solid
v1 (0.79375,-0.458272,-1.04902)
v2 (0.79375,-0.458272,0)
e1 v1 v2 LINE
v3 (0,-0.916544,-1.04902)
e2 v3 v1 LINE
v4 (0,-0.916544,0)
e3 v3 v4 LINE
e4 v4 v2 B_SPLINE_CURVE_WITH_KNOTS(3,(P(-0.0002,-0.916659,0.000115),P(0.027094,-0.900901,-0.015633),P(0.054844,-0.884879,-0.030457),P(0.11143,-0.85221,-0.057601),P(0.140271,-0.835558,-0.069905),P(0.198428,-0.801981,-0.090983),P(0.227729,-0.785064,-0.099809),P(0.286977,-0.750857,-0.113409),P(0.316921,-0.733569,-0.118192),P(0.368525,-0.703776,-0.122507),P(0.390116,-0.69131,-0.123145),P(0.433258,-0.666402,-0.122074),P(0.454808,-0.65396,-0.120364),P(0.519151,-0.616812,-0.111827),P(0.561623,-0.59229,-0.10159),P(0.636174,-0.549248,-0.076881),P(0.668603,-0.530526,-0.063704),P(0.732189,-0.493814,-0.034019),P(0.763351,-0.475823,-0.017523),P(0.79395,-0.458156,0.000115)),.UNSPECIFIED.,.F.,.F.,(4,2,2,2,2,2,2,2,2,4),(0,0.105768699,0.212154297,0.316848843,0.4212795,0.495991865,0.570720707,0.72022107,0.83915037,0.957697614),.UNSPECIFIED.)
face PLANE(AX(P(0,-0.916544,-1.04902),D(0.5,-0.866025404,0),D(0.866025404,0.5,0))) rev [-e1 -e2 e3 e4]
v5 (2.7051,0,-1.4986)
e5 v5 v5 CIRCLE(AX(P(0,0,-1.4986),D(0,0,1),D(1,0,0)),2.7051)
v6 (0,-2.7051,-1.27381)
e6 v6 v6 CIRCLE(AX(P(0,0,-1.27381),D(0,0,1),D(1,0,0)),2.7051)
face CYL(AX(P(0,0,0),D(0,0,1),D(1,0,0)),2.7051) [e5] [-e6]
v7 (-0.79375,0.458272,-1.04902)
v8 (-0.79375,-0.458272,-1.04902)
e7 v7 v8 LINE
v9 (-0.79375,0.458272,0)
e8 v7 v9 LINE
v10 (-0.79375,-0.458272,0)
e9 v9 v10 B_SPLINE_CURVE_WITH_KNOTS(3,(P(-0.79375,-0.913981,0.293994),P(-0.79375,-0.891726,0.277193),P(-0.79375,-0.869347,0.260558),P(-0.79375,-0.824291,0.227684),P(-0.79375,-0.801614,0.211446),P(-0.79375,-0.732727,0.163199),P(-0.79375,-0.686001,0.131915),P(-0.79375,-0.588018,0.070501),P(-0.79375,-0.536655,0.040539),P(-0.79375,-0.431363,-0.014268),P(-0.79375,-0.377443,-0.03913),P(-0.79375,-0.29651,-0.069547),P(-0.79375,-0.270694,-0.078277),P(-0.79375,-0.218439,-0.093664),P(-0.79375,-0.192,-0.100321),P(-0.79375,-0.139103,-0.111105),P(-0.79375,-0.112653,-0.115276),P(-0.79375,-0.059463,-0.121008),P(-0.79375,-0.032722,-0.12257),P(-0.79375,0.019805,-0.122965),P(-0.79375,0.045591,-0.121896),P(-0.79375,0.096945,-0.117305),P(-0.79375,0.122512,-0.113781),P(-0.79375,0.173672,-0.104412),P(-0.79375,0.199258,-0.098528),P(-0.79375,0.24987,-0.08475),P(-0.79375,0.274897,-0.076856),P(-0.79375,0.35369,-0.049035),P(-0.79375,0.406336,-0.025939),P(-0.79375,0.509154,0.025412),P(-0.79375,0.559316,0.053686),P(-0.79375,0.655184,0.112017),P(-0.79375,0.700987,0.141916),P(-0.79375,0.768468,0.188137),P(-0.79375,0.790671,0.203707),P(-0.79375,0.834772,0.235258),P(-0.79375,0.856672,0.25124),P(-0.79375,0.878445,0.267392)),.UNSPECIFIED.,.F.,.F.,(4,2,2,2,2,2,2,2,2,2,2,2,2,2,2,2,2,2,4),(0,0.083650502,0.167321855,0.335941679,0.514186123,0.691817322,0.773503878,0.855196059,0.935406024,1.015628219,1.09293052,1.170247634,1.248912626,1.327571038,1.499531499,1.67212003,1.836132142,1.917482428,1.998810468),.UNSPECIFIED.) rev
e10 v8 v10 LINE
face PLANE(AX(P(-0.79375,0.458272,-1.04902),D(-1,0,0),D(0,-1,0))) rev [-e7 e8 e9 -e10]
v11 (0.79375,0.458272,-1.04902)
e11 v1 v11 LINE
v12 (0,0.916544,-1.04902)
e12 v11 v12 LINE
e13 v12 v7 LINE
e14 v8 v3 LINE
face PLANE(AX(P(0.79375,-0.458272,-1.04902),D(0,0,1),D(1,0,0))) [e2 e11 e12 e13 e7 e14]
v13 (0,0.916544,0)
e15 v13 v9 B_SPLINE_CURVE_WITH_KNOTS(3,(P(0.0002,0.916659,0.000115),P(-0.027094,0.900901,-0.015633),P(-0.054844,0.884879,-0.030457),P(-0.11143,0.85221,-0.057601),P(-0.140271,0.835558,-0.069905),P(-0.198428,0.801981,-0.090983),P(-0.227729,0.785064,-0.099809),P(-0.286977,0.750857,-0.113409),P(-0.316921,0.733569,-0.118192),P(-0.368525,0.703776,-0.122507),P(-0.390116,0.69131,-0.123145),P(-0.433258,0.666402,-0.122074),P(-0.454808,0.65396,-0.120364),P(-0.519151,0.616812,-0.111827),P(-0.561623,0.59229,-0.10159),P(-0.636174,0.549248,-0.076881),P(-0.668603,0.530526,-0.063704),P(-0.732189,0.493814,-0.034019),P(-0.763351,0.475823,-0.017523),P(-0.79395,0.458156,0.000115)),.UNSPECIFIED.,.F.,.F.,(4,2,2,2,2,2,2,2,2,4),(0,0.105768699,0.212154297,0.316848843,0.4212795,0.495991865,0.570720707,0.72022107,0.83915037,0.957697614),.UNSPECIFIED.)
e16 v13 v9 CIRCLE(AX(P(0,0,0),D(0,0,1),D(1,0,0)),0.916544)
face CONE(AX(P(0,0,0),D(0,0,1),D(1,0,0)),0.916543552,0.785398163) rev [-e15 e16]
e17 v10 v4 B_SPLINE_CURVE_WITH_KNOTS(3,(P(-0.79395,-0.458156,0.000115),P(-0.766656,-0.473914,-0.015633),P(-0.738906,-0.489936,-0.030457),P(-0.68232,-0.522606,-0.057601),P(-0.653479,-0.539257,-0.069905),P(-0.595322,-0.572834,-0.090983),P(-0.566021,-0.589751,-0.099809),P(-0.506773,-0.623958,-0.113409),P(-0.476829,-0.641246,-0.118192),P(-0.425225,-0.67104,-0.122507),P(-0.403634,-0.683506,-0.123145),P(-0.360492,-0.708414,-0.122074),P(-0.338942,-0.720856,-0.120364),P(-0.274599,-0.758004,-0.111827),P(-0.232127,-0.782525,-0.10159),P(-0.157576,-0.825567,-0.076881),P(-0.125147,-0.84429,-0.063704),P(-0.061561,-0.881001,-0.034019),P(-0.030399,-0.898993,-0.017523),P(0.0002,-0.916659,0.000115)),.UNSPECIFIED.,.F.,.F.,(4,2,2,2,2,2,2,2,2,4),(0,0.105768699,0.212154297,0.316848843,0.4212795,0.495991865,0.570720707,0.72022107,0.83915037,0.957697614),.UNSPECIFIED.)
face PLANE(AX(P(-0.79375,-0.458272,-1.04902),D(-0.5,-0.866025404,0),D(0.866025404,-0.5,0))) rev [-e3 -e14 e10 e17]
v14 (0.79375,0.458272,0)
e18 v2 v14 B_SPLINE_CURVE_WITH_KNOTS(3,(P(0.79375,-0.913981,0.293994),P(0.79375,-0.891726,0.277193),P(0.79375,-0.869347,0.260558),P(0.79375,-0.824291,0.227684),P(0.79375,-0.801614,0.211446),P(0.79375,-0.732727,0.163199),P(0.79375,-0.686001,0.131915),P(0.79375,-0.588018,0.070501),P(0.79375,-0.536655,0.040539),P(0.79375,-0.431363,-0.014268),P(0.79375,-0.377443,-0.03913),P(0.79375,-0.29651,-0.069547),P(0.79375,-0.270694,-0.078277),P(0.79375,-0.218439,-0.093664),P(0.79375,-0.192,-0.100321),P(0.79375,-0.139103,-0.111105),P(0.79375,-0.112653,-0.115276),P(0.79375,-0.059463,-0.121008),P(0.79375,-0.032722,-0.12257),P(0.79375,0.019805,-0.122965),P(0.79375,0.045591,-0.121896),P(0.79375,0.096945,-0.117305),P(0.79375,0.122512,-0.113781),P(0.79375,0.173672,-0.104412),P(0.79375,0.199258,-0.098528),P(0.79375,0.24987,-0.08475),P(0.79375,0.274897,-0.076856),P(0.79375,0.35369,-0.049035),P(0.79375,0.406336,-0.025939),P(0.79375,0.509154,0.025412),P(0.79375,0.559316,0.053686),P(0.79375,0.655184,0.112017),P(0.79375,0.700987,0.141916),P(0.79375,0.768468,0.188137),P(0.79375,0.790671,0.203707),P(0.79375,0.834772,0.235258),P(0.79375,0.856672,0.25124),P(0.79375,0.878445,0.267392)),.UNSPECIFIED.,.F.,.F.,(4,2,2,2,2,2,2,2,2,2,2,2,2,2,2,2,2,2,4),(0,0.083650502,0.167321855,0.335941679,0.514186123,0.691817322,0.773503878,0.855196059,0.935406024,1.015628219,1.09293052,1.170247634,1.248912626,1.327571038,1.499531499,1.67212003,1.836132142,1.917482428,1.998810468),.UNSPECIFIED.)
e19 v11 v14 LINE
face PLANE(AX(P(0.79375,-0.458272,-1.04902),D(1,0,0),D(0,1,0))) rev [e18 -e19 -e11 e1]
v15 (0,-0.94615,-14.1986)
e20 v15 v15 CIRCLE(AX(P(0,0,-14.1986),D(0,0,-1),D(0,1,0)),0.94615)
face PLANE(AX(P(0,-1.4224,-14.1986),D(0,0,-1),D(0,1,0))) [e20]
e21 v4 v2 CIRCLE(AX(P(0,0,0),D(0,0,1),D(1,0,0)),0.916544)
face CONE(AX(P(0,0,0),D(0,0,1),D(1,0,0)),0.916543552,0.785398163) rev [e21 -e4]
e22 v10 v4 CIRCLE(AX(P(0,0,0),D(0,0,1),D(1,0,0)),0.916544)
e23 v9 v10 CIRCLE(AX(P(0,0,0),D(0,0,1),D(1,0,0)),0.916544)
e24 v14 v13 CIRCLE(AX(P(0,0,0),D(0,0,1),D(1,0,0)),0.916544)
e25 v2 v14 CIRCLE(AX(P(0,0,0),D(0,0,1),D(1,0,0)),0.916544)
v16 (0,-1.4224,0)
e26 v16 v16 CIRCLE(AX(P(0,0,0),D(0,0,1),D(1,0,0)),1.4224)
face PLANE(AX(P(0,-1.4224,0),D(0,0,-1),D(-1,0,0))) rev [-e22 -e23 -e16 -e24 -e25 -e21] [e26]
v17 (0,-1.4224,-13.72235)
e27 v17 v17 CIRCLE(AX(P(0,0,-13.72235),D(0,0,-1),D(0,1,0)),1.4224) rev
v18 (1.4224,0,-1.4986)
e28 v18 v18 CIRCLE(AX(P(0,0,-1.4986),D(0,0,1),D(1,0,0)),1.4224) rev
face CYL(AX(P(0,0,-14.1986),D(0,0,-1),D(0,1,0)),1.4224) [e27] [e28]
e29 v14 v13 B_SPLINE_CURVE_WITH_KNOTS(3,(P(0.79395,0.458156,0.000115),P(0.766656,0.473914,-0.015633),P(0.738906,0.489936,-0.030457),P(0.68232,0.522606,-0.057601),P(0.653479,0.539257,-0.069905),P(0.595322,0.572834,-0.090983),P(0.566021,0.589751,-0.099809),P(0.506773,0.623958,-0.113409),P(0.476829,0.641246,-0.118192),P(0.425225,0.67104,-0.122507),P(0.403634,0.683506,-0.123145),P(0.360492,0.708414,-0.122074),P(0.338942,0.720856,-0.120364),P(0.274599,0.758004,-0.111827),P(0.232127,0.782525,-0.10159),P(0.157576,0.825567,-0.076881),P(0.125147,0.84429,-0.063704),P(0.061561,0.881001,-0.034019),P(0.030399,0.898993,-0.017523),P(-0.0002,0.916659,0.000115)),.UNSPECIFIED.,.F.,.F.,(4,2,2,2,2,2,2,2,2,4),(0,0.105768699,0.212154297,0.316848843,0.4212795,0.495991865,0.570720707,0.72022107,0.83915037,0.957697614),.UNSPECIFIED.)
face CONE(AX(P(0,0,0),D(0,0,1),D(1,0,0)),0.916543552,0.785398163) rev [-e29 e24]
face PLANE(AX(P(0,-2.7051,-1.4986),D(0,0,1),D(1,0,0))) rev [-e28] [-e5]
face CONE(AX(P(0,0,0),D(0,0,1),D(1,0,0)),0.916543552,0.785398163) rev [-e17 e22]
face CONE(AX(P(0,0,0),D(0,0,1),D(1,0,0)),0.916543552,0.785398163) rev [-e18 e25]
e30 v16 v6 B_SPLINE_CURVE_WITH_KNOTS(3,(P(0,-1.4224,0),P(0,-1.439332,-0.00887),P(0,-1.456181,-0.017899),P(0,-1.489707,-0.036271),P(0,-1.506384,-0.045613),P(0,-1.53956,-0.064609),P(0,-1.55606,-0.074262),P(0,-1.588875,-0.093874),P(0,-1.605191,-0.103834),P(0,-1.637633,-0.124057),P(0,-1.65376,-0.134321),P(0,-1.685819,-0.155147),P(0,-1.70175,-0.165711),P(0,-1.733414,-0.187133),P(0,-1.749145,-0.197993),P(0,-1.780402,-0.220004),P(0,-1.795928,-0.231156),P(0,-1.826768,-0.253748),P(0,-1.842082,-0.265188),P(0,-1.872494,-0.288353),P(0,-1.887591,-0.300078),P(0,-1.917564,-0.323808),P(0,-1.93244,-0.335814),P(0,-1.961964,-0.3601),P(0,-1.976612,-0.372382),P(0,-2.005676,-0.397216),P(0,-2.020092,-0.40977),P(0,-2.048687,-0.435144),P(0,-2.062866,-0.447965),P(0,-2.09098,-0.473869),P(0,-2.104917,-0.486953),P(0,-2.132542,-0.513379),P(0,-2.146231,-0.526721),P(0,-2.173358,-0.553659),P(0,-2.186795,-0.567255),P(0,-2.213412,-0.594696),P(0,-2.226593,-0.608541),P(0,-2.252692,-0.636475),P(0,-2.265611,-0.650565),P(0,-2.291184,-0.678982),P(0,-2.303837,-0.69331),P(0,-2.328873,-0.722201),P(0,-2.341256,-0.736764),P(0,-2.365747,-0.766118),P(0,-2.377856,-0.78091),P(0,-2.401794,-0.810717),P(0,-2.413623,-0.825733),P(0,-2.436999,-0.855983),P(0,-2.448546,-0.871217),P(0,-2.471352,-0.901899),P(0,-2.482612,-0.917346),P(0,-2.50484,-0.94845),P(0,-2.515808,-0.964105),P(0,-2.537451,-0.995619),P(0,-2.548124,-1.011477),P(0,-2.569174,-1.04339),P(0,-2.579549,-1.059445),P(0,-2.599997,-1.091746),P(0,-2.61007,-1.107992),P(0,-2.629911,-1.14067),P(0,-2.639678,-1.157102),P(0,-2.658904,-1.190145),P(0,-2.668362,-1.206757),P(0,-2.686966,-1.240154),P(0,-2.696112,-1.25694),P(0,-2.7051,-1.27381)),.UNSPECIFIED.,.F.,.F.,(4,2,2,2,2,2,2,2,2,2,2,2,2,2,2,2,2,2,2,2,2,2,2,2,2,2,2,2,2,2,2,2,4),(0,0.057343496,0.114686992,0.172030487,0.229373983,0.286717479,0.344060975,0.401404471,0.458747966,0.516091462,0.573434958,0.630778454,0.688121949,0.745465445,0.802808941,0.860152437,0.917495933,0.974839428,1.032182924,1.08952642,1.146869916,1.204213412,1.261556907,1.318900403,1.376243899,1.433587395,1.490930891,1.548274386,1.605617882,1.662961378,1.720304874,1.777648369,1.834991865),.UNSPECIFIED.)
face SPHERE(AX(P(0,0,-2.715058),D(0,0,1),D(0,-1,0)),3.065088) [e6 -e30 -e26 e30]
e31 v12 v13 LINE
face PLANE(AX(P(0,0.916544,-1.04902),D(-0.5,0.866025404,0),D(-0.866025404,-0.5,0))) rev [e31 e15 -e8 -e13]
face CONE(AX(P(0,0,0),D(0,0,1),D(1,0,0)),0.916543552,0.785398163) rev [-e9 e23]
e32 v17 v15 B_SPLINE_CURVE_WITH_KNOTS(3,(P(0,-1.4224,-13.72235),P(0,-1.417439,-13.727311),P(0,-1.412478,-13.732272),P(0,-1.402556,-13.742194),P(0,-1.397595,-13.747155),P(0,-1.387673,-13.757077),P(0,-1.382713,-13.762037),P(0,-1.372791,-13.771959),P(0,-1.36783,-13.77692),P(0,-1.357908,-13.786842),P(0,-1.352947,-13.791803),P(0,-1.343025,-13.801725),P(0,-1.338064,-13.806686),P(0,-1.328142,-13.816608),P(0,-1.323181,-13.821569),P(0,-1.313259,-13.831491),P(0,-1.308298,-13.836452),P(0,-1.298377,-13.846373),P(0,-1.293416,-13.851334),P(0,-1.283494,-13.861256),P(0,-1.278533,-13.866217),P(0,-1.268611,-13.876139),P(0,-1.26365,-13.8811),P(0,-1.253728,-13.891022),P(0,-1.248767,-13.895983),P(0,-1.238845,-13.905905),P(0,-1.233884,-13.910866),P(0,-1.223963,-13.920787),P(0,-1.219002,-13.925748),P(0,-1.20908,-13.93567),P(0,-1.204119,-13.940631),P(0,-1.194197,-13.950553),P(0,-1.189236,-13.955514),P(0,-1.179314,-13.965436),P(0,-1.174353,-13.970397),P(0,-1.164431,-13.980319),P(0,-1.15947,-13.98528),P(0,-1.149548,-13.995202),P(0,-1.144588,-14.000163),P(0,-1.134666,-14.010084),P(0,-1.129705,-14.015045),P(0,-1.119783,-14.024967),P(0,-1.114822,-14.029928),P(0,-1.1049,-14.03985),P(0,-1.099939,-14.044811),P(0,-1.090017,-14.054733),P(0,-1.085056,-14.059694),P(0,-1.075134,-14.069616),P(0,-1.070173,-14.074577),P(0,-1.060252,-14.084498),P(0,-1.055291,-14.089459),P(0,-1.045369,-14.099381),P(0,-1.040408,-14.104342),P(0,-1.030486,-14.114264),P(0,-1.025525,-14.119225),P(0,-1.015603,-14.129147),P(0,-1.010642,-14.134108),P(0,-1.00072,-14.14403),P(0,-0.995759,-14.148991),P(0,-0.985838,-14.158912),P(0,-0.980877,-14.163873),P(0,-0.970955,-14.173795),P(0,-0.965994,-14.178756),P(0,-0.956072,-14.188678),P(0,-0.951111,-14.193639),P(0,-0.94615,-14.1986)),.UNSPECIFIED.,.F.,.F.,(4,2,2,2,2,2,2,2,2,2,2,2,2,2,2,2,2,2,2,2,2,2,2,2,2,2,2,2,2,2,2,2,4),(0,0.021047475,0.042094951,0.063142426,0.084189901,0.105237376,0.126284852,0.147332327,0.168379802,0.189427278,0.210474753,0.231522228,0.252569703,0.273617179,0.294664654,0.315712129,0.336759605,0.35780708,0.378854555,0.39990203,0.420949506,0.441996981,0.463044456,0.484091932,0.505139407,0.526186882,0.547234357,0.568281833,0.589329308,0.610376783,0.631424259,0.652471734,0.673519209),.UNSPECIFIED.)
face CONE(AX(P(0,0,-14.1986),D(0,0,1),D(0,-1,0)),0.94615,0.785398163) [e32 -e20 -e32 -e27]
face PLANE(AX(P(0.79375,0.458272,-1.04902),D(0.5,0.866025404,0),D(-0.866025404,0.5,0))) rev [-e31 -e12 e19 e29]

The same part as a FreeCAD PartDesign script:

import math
import FreeCAD as App
import Part
import Sketcher
Q = App.Units.Quantity


def edges_at(feature, points):
    """Names of the edges that pass closest to the given points."""
    edges = feature.Shape.Edges
    near = lambda p: min(range(len(edges)), key=lambda i: edges[i].distToShape(Part.Vertex(*p))[0])
    return sorted({f"Edge{near(p) + 1}" for p in points})

doc = App.newDocument("Part")
body = doc.addObject("PartDesign::Body", "Body")

# Sketch on YZ plane
sketch1 = doc.addObject("Sketcher::SketchObject", "Sketch")
body.addObject(sketch1)
sketch1.AttachmentSupport = (doc.YZ_Plane, [""])
sketch1.MapMode = "FlatFace"
sketch1.addGeometry(Part.LineSegment(App.Vector(1.4, -1.5, 0), App.Vector(0, -1.5, 0)), False)
sketch1.addGeometry(Part.LineSegment(App.Vector(0, -1.5, 0), App.Vector(0, -14.2, 0)), False)
sketch1.addGeometry(Part.LineSegment(App.Vector(0, -14.2, 0), App.Vector(1.4, -14.2, 0)), False)
sketch1.addGeometry(Part.LineSegment(App.Vector(1.4, -14.2, 0), App.Vector(1.4, -1.5, 0)), False)
sketch1.addConstraint(Sketcher.Constraint("Coincident", 0, 2, 1, 1))
sketch1.addConstraint(Sketcher.Constraint("Coincident", 1, 2, 2, 1))
sketch1.addConstraint(Sketcher.Constraint("Coincident", 2, 2, 3, 1))
sketch1.addConstraint(Sketcher.Constraint("Coincident", 3, 2, 0, 1))
sketch1.addConstraint(Sketcher.Constraint("Horizontal", 0))
sketch1.addConstraint(Sketcher.Constraint("Vertical", 1))
sketch1.addConstraint(Sketcher.Constraint("Horizontal", 2))
sketch1.addConstraint(Sketcher.Constraint("Vertical", 3))
sketch1.addConstraint(Sketcher.Constraint("PointOnObject", 0, 2, -2))
sketch1.addConstraint(Sketcher.Constraint("DistanceY", 1, 2, 1, 1, Q("0.5 in")))
sketch1.addConstraint(Sketcher.Constraint("DistanceX", 0, 2, 0, 1, Q("0.056 in")))
sketch1.addConstraint(Sketcher.Constraint("DistanceY", 0, 2, -1, 1, Q("0.059 in")))
revolution = doc.addObject("PartDesign::Revolution", "Revolution")
body.addObject(revolution)
revolution.Profile = sketch1
revolution.ReferenceAxis = (sketch1, ["V_Axis"])
revolution.Angle = 360
doc.recompute()

chamfer = doc.addObject("PartDesign::Chamfer", "Chamfer")
body.addObject(chamfer)
chamfer.Base = (revolution, edges_at(revolution, [(0, -1.422, -14.199)]))
chamfer.Size = 0.47625

# Sketch on YZ plane
sketch2 = doc.addObject("Sketcher::SketchObject", "Sketch001")
body.addObject(sketch2)
sketch2.AttachmentSupport = (doc.YZ_Plane, [""])
sketch2.MapMode = "FlatFace"
sketch2.addGeometry(Part.LineSegment(App.Vector(2.71, -1.5, 0), App.Vector(2.71, -1.27, 0)), False)
sketch2.addGeometry(Part.ArcOfCircle(Part.Circle(App.Vector(0, -2.72, 0), App.Vector(0, 0, 1), 3.07), math.radians(28), math.radians(62)), False)
sketch2.addGeometry(Part.LineSegment(App.Vector(1.42, 0, 0), App.Vector(0, 0, 0)), False)
sketch2.addGeometry(Part.LineSegment(App.Vector(0, 0, 0), App.Vector(0, -1.5, 0)), False)
sketch2.addGeometry(Part.LineSegment(App.Vector(0, -1.5, 0), App.Vector(2.71, -1.5, 0)), False)
sketch2.addConstraint(Sketcher.Constraint("Coincident", 0, 2, 1, 1))
sketch2.addConstraint(Sketcher.Constraint("Coincident", 1, 2, 2, 1))
sketch2.addConstraint(Sketcher.Constraint("Coincident", 2, 2, 3, 1))
sketch2.addConstraint(Sketcher.Constraint("Coincident", 3, 2, 4, 1))
sketch2.addConstraint(Sketcher.Constraint("Coincident", 4, 2, 0, 1))
sketch2.addConstraint(Sketcher.Constraint("Vertical", 0))
sketch2.addConstraint(Sketcher.Constraint("Horizontal", 2))
sketch2.addConstraint(Sketcher.Constraint("Vertical", 3))
sketch2.addConstraint(Sketcher.Constraint("Horizontal", 4))
sketch2.addConstraint(Sketcher.Constraint("Coincident", 2, 2, -1, 1))
sketch2.addConstraint(Sketcher.Constraint("PointOnObject", 1, 3, -2))
sketch2.addConstraint(Sketcher.Constraint("DistanceX", 2, 2, 2, 1, Q("0.056 in")))
sketch2.addConstraint(Sketcher.Constraint("DistanceY", 3, 2, 3, 1, Q("0.059 in")))
sketch2.addConstraint(Sketcher.Constraint("DistanceX", 4, 1, 4, 2, Q("0.1065 in")))
sketch2.addConstraint(Sketcher.Constraint("Radius", 1, Q("3.065088 mm")))
revolution2 = doc.addObject("PartDesign::Revolution", "Revolution001")
body.addObject(revolution2)
revolution2.Profile = sketch2
revolution2.ReferenceAxis = (sketch2, ["V_Axis"])
revolution2.Angle = 360

# Sketch on XY plane
sketch3 = doc.addObject("Sketcher::SketchObject", "Sketch002")
body.addObject(sketch3)
sketch3.AttachmentSupport = (doc.XY_Plane, [""])
sketch3.MapMode = "FlatFace"
sketch3.addGeometry(Part.LineSegment(App.Vector(0.8, -0.5, 0), App.Vector(0.8, 0.5, 0)), False)
sketch3.addGeometry(Part.LineSegment(App.Vector(0.8, 0.5, 0), App.Vector(0, 0.9, 0)), False)
sketch3.addGeometry(Part.LineSegment(App.Vector(0, 0.9, 0), App.Vector(-0.8, 0.5, 0)), False)
sketch3.addGeometry(Part.LineSegment(App.Vector(-0.8, 0.5, 0), App.Vector(-0.8, -0.5, 0)), False)
sketch3.addGeometry(Part.LineSegment(App.Vector(-0.8, -0.5, 0), App.Vector(0, -0.9, 0)), False)
sketch3.addGeometry(Part.LineSegment(App.Vector(0, -0.9, 0), App.Vector(0.8, -0.5, 0)), False)
sketch3.addConstraint(Sketcher.Constraint("Coincident", 0, 2, 1, 1))
sketch3.addConstraint(Sketcher.Constraint("Coincident", 1, 2, 2, 1))
sketch3.addConstraint(Sketcher.Constraint("Coincident", 2, 2, 3, 1))
sketch3.addConstraint(Sketcher.Constraint("Coincident", 3, 2, 4, 1))
sketch3.addConstraint(Sketcher.Constraint("Coincident", 4, 2, 5, 1))
sketch3.addConstraint(Sketcher.Constraint("Coincident", 5, 2, 0, 1))
sketch3.addConstraint(Sketcher.Constraint("Vertical", 0))
sketch3.addConstraint(Sketcher.Constraint("Vertical", 3))
sketch3.addConstraint(Sketcher.Constraint("Symmetric", 0, 2, 3, 2, -1, 1))
sketch3.addConstraint(Sketcher.Constraint("Symmetric", 1, 2, 4, 2, -1, 1))
sketch3.addConstraint(Sketcher.Constraint("PointOnObject", 1, 2, -2))
sketch3.addConstraint(Sketcher.Constraint("Parallel", 2, 5))
sketch3.addConstraint(Sketcher.Constraint("Horizontal", 0, 2, 2, 2))
sketch3.addConstraint(Sketcher.Constraint("Angle", 1, Q("150 deg")))
sketch3.addConstraint(Sketcher.Constraint("DistanceX", -1, 1, 0, 2, Q("0.03125 in")))
sketch3.addConstraint(Sketcher.Constraint("DistanceY", 0, 1, 0, 2, Q("0.916544 mm")))
pocket1 = doc.addObject("PartDesign::Pocket", "Pocket")
body.addObject(pocket1)
pocket1.Profile = sketch3
pocket1.Length = Q("0.0413 in")

# Sketch on YZ plane
sketch4 = doc.addObject("Sketcher::SketchObject", "Sketch003")
body.addObject(sketch4)
sketch4.AttachmentSupport = (doc.YZ_Plane, [""])
sketch4.MapMode = "FlatFace"
sketch4.addGeometry(Part.LineSegment(App.Vector(0, 0, 0), App.Vector(-0.9, 0, 0)), False)
sketch4.addGeometry(Part.LineSegment(App.Vector(-0.9, 0, 0), App.Vector(0, -0.9, 0)), False)
sketch4.addGeometry(Part.LineSegment(App.Vector(0, -0.9, 0), App.Vector(0, 0, 0)), False)
sketch4.addConstraint(Sketcher.Constraint("Coincident", 0, 2, 1, 1))
sketch4.addConstraint(Sketcher.Constraint("Coincident", 1, 2, 2, 1))
sketch4.addConstraint(Sketcher.Constraint("Coincident", 2, 2, 0, 1))
sketch4.addConstraint(Sketcher.Constraint("Horizontal", 0))
sketch4.addConstraint(Sketcher.Constraint("Vertical", 2))
sketch4.addConstraint(Sketcher.Constraint("Coincident", 2, 2, -1, 1))
sketch4.addConstraint(Sketcher.Constraint("Equal", 0, 2))
sketch4.addConstraint(Sketcher.Constraint("Distance", 1, Q("1.296188 mm")))
groove = doc.addObject("PartDesign::Groove", "Groove")
body.addObject(groove)
groove.Profile = sketch4
groove.ReferenceAxis = (sketch4, ["V_Axis"])
groove.Angle = 360

doc.recompute()
